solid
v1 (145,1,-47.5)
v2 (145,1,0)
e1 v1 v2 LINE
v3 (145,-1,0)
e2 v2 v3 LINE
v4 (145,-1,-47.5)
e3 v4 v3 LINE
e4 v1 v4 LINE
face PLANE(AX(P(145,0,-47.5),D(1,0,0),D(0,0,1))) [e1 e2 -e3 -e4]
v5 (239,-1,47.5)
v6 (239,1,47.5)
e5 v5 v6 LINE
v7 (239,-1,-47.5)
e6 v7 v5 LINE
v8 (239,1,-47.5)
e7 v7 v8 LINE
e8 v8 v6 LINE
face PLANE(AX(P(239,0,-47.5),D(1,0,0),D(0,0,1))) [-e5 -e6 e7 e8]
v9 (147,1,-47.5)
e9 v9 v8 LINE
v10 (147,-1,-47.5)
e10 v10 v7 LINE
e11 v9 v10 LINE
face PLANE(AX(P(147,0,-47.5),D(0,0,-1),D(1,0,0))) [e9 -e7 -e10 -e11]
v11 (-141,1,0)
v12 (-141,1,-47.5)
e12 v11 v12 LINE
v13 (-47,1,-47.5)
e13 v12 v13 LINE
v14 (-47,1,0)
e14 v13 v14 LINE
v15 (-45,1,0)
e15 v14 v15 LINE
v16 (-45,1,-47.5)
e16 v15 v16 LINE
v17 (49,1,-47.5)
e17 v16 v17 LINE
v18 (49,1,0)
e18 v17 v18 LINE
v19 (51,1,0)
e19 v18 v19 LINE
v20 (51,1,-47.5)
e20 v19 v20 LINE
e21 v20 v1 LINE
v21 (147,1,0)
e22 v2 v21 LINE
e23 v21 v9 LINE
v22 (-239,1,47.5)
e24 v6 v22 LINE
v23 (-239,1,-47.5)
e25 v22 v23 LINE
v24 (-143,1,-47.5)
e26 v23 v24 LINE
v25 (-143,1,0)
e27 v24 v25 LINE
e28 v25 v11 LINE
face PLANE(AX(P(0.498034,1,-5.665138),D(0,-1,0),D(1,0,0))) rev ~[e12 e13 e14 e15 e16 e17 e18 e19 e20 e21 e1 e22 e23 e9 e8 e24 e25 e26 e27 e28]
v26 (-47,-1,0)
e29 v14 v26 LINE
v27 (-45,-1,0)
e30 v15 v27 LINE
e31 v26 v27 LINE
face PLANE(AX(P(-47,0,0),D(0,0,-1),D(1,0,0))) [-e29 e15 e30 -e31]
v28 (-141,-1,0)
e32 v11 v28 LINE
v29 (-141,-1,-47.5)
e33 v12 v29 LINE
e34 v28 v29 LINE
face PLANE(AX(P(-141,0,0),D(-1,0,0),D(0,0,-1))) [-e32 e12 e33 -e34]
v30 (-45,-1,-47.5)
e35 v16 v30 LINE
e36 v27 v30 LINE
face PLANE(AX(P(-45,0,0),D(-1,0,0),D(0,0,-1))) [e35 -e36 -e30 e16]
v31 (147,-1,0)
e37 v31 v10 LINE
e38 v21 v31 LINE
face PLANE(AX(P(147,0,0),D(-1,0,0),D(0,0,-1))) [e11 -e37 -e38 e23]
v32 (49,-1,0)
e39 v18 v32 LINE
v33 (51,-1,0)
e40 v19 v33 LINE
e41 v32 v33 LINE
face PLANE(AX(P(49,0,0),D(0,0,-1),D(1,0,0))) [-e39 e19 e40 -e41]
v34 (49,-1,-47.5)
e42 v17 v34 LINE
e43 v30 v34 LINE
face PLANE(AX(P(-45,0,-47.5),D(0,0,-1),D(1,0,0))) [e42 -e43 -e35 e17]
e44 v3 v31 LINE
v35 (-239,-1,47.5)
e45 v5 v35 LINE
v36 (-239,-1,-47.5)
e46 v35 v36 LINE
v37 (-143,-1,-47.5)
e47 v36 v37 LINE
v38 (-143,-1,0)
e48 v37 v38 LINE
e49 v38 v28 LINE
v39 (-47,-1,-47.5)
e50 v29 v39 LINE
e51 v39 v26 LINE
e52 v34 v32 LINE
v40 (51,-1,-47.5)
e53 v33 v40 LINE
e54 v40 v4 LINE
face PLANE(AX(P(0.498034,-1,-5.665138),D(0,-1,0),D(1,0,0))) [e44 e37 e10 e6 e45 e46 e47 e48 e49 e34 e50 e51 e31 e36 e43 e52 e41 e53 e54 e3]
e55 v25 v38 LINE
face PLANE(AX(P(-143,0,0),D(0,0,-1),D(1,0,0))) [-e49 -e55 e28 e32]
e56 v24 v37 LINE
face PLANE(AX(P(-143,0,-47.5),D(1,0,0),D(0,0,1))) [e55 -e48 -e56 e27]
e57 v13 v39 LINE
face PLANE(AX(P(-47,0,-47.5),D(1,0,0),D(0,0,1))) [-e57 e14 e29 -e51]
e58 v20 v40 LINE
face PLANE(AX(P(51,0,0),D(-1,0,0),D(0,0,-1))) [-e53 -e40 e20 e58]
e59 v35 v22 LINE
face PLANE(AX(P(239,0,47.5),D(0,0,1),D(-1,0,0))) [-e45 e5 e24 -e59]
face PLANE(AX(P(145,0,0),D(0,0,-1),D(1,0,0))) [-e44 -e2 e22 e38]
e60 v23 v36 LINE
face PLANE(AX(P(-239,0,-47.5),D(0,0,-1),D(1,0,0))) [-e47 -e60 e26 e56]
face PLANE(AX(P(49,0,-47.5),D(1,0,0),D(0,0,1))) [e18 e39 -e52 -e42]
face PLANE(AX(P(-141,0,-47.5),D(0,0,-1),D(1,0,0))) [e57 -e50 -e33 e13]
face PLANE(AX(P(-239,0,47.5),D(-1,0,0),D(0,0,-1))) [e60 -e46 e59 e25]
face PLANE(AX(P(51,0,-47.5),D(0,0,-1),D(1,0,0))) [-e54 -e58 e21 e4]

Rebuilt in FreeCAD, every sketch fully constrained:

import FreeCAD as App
import Part
import Sketcher

doc = App.newDocument("Part")
body = doc.addObject("PartDesign::Body", "Body")

# Sketch on XZ plane
sketch1 = body.newObject("Sketcher::SketchObject", "Sketch")
sketch1.AttachmentSupport = (doc.getObject("XZ_Plane"), [""])
sketch1.MapMode = "FlatFace"
sketch1.addGeometry(Part.LineSegment(App.Vector(-239, 47.5, 0), App.Vector(-239, -47.5, 0)), False)
sketch1.addGeometry(Part.LineSegment(App.Vector(-239, -47.5, 0), App.Vector(-143, -47.5, 0)), False)
sketch1.addGeometry(Part.LineSegment(App.Vector(-143, -47.5, 0), App.Vector(-143, 0, 0)), False)
sketch1.addGeometry(Part.LineSegment(App.Vector(-143, 0, 0), App.Vector(-141, 0, 0)), False)
sketch1.addGeometry(Part.LineSegment(App.Vector(-141, 0, 0), App.Vector(-141, -47.5, 0)), False)
sketch1.addGeometry(Part.LineSegment(App.Vector(-141, -47.5, 0), App.Vector(-47, -47.5, 0)), False)
sketch1.addGeometry(Part.LineSegment(App.Vector(-47, -47.5, 0), App.Vector(-47, 0, 0)), False)
sketch1.addGeometry(Part.LineSegment(App.Vector(-47, 0, 0), App.Vector(-45, 0, 0)), False)
sketch1.addGeometry(Part.LineSegment(App.Vector(-45, 0, 0), App.Vector(-45, -47.5, 0)), False)
sketch1.addGeometry(Part.LineSegment(App.Vector(-45, -47.5, 0), App.Vector(49, -47.5, 0)), False)
sketch1.addGeometry(Part.LineSegment(App.Vector(49, -47.5, 0), App.Vector(49, 0, 0)), False)
sketch1.addGeometry(Part.LineSegment(App.Vector(49, 0, 0), App.Vector(51, 0, 0)), False)
sketch1.addGeometry(Part.LineSegment(App.Vector(51, 0, 0), App.Vector(51, -47.5, 0)), False)
sketch1.addGeometry(Part.LineSegment(App.Vector(51, -47.5, 0), App.Vector(145, -47.5, 0)), False)
sketch1.addGeometry(Part.LineSegment(App.Vector(145, -47.5, 0), App.Vector(145, 0, 0)), False)
sketch1.addGeometry(Part.LineSegment(App.Vector(145, 0, 0), App.Vector(147, 0, 0)), False)
sketch1.addGeometry(Part.LineSegment(App.Vector(147, 0, 0), App.Vector(147, -47.5, 0)), False)
sketch1.addGeometry(Part.LineSegment(App.Vector(147, -47.5, 0), App.Vector(239, -47.5, 0)), False)
sketch1.addGeometry(Part.LineSegment(App.Vector(239, -47.5, 0), App.Vector(239, 47.5, 0)), False)
sketch1.addGeometry(Part.LineSegment(App.Vector(239, 47.5, 0), App.Vector(-239, 47.5, 0)), False)
sketch1.addConstraint(Sketcher.Constraint("Coincident", 0, 2, 1, 1))
sketch1.addConstraint(Sketcher.Constraint("Coincident", 1, 2, 2, 1))
sketch1.addConstraint(Sketcher.Constraint("Coincident", 2, 2, 3, 1))
sketch1.addConstraint(Sketcher.Constraint("Coincident", 3, 2, 4, 1))
sketch1.addConstraint(Sketcher.Constraint("Coincident", 4, 2, 5, 1))
sketch1.addConstraint(Sketcher.Constraint("Coincident", 5, 2, 6, 1))
sketch1.addConstraint(Sketcher.Constraint("Coincident", 6, 2, 7, 1))
sketch1.addConstraint(Sketcher.Constraint("Coincident", 7, 2, 8, 1))
sketch1.addConstraint(Sketcher.Constraint("Coincident", 8, 2, 9, 1))
sketch1.addConstraint(Sketcher.Constraint("Coincident", 9, 2, 10, 1))
sketch1.addConstraint(Sketcher.Constraint("Coincident", 10, 2, 11, 1))
sketch1.addConstraint(Sketcher.Constraint("Coincident", 11, 2, 12, 1))
sketch1.addConstraint(Sketcher.Constraint("Coincident", 12, 2, 13, 1))
sketch1.addConstraint(Sketcher.Constraint("Coincident", 13, 2, 14, 1))
sketch1.addConstraint(Sketcher.Constraint("Coincident", 14, 2, 15, 1))
sketch1.addConstraint(Sketcher.Constraint("Coincident", 15, 2, 16, 1))
sketch1.addConstraint(Sketcher.Constraint("Coincident", 16, 2, 17, 1))
sketch1.addConstraint(Sketcher.Constraint("Coincident", 17, 2, 18, 1))
sketch1.addConstraint(Sketcher.Constraint("Coincident", 18, 2, 19, 1))
sketch1.addConstraint(Sketcher.Constraint("Coincident", 19, 2, 0, 1))
sketch1.addConstraint(Sketcher.Constraint("Vertical", 0))
sketch1.addConstraint(Sketcher.Constraint("Horizontal", 1))
sketch1.addConstraint(Sketcher.Constraint("Vertical", 2))
sketch1.addConstraint(Sketcher.Constraint("Horizontal", 3))
sketch1.addConstraint(Sketcher.Constraint("Vertical", 4))
sketch1.addConstraint(Sketcher.Constraint("Horizontal", 5))
sketch1.addConstraint(Sketcher.Constraint("Vertical", 6))
sketch1.addConstraint(Sketcher.Constraint("Horizontal", 7))
sketch1.addConstraint(Sketcher.Constraint("Vertical", 8))
sketch1.addConstraint(Sketcher.Constraint("Horizontal", 9))
sketch1.addConstraint(Sketcher.Constraint("Vertical", 10))
sketch1.addConstraint(Sketcher.Constraint("Horizontal", 11))
sketch1.addConstraint(Sketcher.Constraint("Vertical", 12))
sketch1.addConstraint(Sketcher.Constraint("Horizontal", 13))
sketch1.addConstraint(Sketcher.Constraint("Vertical", 14))
sketch1.addConstraint(Sketcher.Constraint("Horizontal", 15))
sketch1.addConstraint(Sketcher.Constraint("Vertical", 16))
sketch1.addConstraint(Sketcher.Constraint("Horizontal", 17))
sketch1.addConstraint(Sketcher.Constraint("Vertical", 18))
sketch1.addConstraint(Sketcher.Constraint("Horizontal", 19))
sketch1.addConstraint(Sketcher.Constraint("Symmetric", 0, 2, 18, 2, -1, 1))
sketch1.addConstraint(Sketcher.Constraint("PointOnObject", 2, 2, -1))
sketch1.addConstraint(Sketcher.Constraint("PointOnObject", 6, 2, -1))
sketch1.addConstraint(Sketcher.Constraint("PointOnObject", 10, 2, -1))
sketch1.addConstraint(Sketcher.Constraint("PointOnObject", 14, 2, -1))
sketch1.addConstraint(Sketcher.Constraint("Horizontal", 1, 2, 4, 2))
sketch1.addConstraint(Sketcher.Constraint("Horizontal", 5, 2, 8, 2))
sketch1.addConstraint(Sketcher.Constraint("Horizontal", 9, 2, 12, 2))
sketch1.addConstraint(Sketcher.Constraint("Horizontal", 13, 2, 16, 2))
sketch1.addConstraint(Sketcher.Constraint("Equal", 3, 7))
sketch1.addConstraint(Sketcher.Constraint("Equal", 5, 9))
sketch1.addConstraint(Sketcher.Constraint("Equal", 7, 11))
sketch1.addConstraint(Sketcher.Constraint("Equal", 9, 13))
sketch1.addConstraint(Sketcher.Constraint("Equal", 11, 15))
sketch1.addConstraint(Sketcher.Constraint("DistanceX", 1, 1, 1, 2, 96.0))
sketch1.addConstraint(Sketcher.Constraint("DistanceX", 3, 1, 3, 2, 2.0))
sketch1.addConstraint(Sketcher.Constraint("DistanceX", 5, 1, 5, 2, 94.0))
sketch1.addConstraint(Sketcher.Constraint("DistanceX", 17, 1, 17, 2, 92.0))
sketch1.addConstraint(Sketcher.Constraint("DistanceY", 0, 2, 0, 1, 95.0))
pad1 = body.newObject("PartDesign::Pad", "Pad")
pad1.Profile = sketch1
pad1.Length = 2
pad1.Midplane = True

doc.recompute()
